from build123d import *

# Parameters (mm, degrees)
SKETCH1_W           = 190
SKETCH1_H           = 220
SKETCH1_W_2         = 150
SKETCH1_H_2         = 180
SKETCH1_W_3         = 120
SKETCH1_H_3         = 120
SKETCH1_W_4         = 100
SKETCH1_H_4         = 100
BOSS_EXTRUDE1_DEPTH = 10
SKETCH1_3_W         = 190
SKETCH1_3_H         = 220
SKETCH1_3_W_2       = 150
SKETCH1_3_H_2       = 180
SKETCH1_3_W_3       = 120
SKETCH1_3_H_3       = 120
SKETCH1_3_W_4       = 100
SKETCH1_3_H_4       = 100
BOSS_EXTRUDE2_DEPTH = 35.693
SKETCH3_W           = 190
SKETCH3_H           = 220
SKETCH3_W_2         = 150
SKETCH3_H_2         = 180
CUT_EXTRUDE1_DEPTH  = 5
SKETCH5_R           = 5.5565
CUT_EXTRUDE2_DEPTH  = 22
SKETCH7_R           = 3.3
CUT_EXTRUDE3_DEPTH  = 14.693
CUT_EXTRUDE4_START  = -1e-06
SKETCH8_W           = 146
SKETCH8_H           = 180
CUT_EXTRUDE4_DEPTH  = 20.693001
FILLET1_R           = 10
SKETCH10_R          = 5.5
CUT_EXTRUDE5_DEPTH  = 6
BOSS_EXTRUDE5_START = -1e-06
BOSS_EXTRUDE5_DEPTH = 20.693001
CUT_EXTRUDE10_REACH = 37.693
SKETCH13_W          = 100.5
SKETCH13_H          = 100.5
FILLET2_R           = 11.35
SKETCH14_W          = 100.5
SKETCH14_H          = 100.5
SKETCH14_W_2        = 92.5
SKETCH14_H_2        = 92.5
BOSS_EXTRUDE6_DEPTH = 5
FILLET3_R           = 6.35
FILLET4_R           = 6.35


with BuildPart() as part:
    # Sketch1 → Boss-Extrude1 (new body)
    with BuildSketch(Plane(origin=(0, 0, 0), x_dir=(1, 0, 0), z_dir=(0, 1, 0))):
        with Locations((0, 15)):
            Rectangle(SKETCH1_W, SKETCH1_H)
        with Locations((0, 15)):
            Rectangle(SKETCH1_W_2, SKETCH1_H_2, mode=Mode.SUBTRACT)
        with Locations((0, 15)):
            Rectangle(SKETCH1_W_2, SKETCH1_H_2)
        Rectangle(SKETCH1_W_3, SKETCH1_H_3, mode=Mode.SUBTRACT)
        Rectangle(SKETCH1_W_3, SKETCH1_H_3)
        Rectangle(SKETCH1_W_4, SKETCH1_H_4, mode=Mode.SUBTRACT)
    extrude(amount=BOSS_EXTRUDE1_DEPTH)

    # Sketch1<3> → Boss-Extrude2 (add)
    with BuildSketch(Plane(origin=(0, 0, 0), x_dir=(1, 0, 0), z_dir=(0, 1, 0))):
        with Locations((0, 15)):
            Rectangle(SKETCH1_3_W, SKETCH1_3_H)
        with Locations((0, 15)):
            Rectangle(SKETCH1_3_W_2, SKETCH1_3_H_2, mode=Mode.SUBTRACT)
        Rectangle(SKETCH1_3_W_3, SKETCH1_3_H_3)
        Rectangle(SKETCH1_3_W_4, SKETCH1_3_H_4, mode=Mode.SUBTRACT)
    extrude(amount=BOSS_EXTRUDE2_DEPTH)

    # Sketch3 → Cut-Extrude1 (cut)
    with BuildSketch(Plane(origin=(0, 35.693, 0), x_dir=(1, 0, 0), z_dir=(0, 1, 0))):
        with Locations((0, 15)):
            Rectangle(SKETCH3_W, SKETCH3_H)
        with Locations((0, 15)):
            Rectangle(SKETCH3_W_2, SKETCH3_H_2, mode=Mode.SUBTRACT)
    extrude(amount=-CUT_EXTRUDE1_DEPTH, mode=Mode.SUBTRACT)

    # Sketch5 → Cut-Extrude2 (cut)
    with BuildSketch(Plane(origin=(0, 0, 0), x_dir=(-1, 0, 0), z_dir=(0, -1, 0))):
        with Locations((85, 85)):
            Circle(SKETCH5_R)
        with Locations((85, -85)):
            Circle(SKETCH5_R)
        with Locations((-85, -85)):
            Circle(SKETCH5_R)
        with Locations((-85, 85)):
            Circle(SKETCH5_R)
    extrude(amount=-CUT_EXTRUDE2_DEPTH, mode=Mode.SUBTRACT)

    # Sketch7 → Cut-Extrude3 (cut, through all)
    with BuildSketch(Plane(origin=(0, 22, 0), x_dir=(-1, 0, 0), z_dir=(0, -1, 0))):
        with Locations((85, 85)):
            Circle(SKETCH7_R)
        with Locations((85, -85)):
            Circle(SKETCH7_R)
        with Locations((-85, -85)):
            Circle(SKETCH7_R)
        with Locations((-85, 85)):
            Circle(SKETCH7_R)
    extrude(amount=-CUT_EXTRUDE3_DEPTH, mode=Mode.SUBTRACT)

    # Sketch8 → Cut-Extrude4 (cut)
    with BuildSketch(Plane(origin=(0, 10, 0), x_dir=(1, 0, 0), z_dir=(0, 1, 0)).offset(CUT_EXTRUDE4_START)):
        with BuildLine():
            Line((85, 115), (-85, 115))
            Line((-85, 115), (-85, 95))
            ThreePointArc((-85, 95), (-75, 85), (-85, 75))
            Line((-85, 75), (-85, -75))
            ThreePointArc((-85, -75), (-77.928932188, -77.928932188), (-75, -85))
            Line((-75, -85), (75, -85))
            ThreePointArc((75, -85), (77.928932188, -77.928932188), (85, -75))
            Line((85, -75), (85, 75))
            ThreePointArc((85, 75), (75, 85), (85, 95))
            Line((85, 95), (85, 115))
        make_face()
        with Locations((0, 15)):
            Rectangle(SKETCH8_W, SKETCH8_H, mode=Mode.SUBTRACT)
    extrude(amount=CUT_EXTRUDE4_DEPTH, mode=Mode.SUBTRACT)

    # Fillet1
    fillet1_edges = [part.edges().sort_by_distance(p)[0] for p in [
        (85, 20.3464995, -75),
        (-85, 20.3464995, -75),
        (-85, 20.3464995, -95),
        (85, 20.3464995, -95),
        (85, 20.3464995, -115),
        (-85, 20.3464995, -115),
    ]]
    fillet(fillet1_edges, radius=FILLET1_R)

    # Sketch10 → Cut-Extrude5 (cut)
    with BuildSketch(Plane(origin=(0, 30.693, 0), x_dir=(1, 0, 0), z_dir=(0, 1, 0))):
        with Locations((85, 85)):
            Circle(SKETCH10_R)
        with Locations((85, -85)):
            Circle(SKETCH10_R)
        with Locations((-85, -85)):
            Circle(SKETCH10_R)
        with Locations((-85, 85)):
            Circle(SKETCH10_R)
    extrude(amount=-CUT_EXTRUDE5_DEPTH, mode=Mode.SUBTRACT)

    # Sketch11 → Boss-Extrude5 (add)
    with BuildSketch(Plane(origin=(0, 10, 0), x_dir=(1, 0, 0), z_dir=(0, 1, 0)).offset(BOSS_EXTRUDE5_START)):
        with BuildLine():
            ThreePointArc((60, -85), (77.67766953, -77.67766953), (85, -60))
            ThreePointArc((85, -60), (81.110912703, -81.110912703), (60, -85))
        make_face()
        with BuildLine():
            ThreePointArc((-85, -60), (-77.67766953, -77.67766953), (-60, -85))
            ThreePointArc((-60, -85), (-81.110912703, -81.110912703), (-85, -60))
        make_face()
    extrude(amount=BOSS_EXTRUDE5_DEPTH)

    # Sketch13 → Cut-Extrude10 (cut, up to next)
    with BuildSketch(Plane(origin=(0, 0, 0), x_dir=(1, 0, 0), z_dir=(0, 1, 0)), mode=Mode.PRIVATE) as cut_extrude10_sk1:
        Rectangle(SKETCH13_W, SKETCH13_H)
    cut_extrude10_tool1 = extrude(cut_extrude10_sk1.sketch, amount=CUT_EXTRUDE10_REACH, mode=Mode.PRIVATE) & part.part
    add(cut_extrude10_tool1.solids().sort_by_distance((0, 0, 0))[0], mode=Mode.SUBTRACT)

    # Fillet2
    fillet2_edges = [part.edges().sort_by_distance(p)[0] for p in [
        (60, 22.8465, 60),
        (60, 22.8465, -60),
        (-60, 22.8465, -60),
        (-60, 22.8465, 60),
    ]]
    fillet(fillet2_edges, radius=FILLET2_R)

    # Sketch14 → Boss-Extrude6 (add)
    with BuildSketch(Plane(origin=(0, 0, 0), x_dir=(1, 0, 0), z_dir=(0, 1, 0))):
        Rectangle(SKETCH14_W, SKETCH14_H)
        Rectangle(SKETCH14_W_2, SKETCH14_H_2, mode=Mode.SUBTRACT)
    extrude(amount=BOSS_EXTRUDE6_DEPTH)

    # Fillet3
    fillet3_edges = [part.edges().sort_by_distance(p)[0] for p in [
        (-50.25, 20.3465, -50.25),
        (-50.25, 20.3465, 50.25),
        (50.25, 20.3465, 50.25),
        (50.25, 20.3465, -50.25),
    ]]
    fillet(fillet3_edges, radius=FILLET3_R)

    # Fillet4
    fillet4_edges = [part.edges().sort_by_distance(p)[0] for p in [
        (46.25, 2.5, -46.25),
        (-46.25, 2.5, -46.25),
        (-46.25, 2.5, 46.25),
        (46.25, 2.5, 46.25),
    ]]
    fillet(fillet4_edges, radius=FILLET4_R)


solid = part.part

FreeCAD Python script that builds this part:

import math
import FreeCAD as App
import Part
import Sketcher


def edges_at(feature, points):
    """Names of the edges that pass closest to the given points."""
    edges = feature.Shape.Edges
    near = lambda p: min(range(len(edges)), key=lambda i: edges[i].distToShape(Part.Vertex(*p))[0])
    return sorted({f"Edge{near(p) + 1}" for p in points})


def add_polygon(sketch, points):
    """Adds a closed chain of lines whose ends are joined by coincident constraints."""
    first, n = sketch.GeometryCount, len(points)
    for a, b in zip(points, points[1:] + points[:1]):
        sketch.addGeometry(Part.LineSegment(App.Vector(*a, 0), App.Vector(*b, 0)), False)
    for i in range(n):
        sketch.addConstraint(Sketcher.Constraint("Coincident", first + i, 2, first + (i + 1) % n, 1))

doc = App.newDocument("Part")
body = doc.addObject("PartDesign::Body", "Body")

# Sketch on XZ plane
sketch1 = body.newObject("Sketcher::SketchObject", "Sketch")
sketch1.AttachmentSupport = (doc.getObject("XZ_Plane"), [""])
sketch1.MapMode = "FlatFace"
add_polygon(sketch1, [(-95, -125), (-95, 95), (95, 95), (95, -125)])  # lines 0-3
add_polygon(sketch1, [(50, 50), (-50, 50), (-50, -50), (50, -50)])  # lines 4-7
sketch1.addConstraint(Sketcher.Constraint("Vertical", 0))
sketch1.addConstraint(Sketcher.Constraint("Horizontal", 1))
sketch1.addConstraint(Sketcher.Constraint("Vertical", 2))
sketch1.addConstraint(Sketcher.Constraint("Horizontal", 3))
sketch1.addConstraint(Sketcher.Constraint("Horizontal", 4))
sketch1.addConstraint(Sketcher.Constraint("Vertical", 5))
sketch1.addConstraint(Sketcher.Constraint("Horizontal", 6))
sketch1.addConstraint(Sketcher.Constraint("Vertical", 7))
sketch1.addConstraint(Sketcher.Constraint("Symmetric", 4, 2, 6, 2, -1, 1))
sketch1.addConstraint(Sketcher.Constraint("Equal", 6, 5))
sketch1.addConstraint(Sketcher.Constraint("DistanceX", 1, 1, 1, 2, 190.0))
sketch1.addConstraint(Sketcher.Constraint("DistanceX", 4, 2, 4, 1, 100.0))
sketch1.addConstraint(Sketcher.Constraint("DistanceY", 0, 1, 0, 2, 220.0))
sketch1.addConstraint(Sketcher.Constraint("DistanceX", 0, 2, -1, 1, 95.0))
sketch1.addConstraint(Sketcher.Constraint("DistanceY", -1, 1, 0, 2, 95.0))
pad1 = body.newObject("PartDesign::Pad", "Pad")
pad1.Profile = sketch1
pad1.Length = 10
pad1.Reversed = True

# Sketch on XZ plane
sketch2 = body.newObject("Sketcher::SketchObject", "Sketch001")
sketch2.AttachmentSupport = (doc.getObject("XZ_Plane"), [""])
sketch2.MapMode = "FlatFace"
add_polygon(sketch2, [(-95, -125), (-95, 95), (95, 95), (95, -125)])  # lines 0-3
add_polygon(sketch2, [(75, 75), (-75, 75), (-75, -105), (75, -105)])  # lines 4-7
add_polygon(sketch2, [(-60, -60), (-60, 60), (60, 60), (60, -60)])  # lines 8-11
add_polygon(sketch2, [(50, 50), (-50, 50), (-50, -50), (50, -50)])  # lines 12-15
sketch2.addConstraint(Sketcher.Constraint("Vertical", 0))
sketch2.addConstraint(Sketcher.Constraint("Horizontal", 1))
sketch2.addConstraint(Sketcher.Constraint("Vertical", 2))
sketch2.addConstraint(Sketcher.Constraint("Horizontal", 3))
sketch2.addConstraint(Sketcher.Constraint("Horizontal", 4))
sketch2.addConstraint(Sketcher.Constraint("Vertical", 5))
sketch2.addConstraint(Sketcher.Constraint("Horizontal", 6))
sketch2.addConstraint(Sketcher.Constraint("Vertical", 7))
sketch2.addConstraint(Sketcher.Constraint("Vertical", 8))
sketch2.addConstraint(Sketcher.Constraint("Horizontal", 9))
sketch2.addConstraint(Sketcher.Constraint("Vertical", 10))
sketch2.addConstraint(Sketcher.Constraint("Horizontal", 11))
sketch2.addConstraint(Sketcher.Constraint("Horizontal", 12))
sketch2.addConstraint(Sketcher.Constraint("Vertical", 13))
sketch2.addConstraint(Sketcher.Constraint("Horizontal", 14))
sketch2.addConstraint(Sketcher.Constraint("Vertical", 15))
sketch2.addConstraint(Sketcher.Constraint("Symmetric", 8, 2, 10, 2, -1, 1))
sketch2.addConstraint(Sketcher.Constraint("Symmetric", 12, 2, 14, 2, -1, 1))
sketch2.addConstraint(Sketcher.Constraint("Equal", 11, 8))
sketch2.addConstraint(Sketcher.Constraint("Equal", 14, 13))
sketch2.addConstraint(Sketcher.Constraint("DistanceX", 1, 1, 1, 2, 190.0))
sketch2.addConstraint(Sketcher.Constraint("DistanceX", 4, 2, 4, 1, 150.0))
sketch2.addConstraint(Sketcher.Constraint("DistanceX", 9, 1, 9, 2, 120.0))
sketch2.addConstraint(Sketcher.Constraint("DistanceX", 12, 2, 12, 1, 100.0))
sketch2.addConstraint(Sketcher.Constraint("DistanceY", 0, 1, 0, 2, 220.0))
sketch2.addConstraint(Sketcher.Constraint("DistanceY", 5, 2, 5, 1, 180.0))
sketch2.addConstraint(Sketcher.Constraint("DistanceX", 0, 2, -1, 1, 95.0))
sketch2.addConstraint(Sketcher.Constraint("DistanceY", -1, 1, 0, 2, 95.0))
sketch2.addConstraint(Sketcher.Constraint("DistanceX", 4, 2, -1, 1, 75.0))
sketch2.addConstraint(Sketcher.Constraint("DistanceY", -1, 1, 4, 2, 75.0))
pad2 = body.newObject("PartDesign::Pad", "Pad001")
pad2.Profile = sketch2
pad2.Length = 35.693
pad2.Reversed = True

# Sketch on XZ plane
sketch3 = body.newObject("Sketcher::SketchObject", "Sketch002")
sketch3.AttachmentSupport = (doc.getObject("XZ_Plane"), [""])
sketch3.MapMode = "FlatFace"
sketch3.AttachmentOffset = App.Placement(App.Vector(0, 0, -35.693), App.Rotation())
add_polygon(sketch3, [(-95, -125), (-95, 95), (95, 95), (95, -125)])  # lines 0-3
add_polygon(sketch3, [(75, 75), (-75, 75), (-75, -105), (75, -105)])  # lines 4-7
sketch3.addConstraint(Sketcher.Constraint("Vertical", 0))
sketch3.addConstraint(Sketcher.Constraint("Horizontal", 1))
sketch3.addConstraint(Sketcher.Constraint("Vertical", 2))
sketch3.addConstraint(Sketcher.Constraint("Horizontal", 3))
sketch3.addConstraint(Sketcher.Constraint("Horizontal", 4))
sketch3.addConstraint(Sketcher.Constraint("Vertical", 5))
sketch3.addConstraint(Sketcher.Constraint("Horizontal", 6))
sketch3.addConstraint(Sketcher.Constraint("Vertical", 7))
sketch3.addConstraint(Sketcher.Constraint("DistanceX", 1, 1, 1, 2, 190.0))
sketch3.addConstraint(Sketcher.Constraint("DistanceX", 4, 2, 4, 1, 150.0))
sketch3.addConstraint(Sketcher.Constraint("DistanceY", 0, 1, 0, 2, 220.0))
sketch3.addConstraint(Sketcher.Constraint("DistanceY", 5, 2, 5, 1, 180.0))
sketch3.addConstraint(Sketcher.Constraint("DistanceX", 0, 2, -1, 1, 95.0))
sketch3.addConstraint(Sketcher.Constraint("DistanceY", -1, 1, 0, 2, 95.0))
sketch3.addConstraint(Sketcher.Constraint("DistanceX", 4, 2, -1, 1, 75.0))
sketch3.addConstraint(Sketcher.Constraint("DistanceY", -1, 1, 4, 2, 75.0))
pocket1 = body.newObject("PartDesign::Pocket", "Pocket")
pocket1.Profile = sketch3
pocket1.Length = 5
pocket1.Reversed = True

# Sketch on XZ plane
sketch4 = body.newObject("Sketcher::SketchObject", "Sketch003")
sketch4.AttachmentSupport = (doc.getObject("XZ_Plane"), [""])
sketch4.MapMode = "FlatFace"
sketch4.addGeometry(Part.Circle(App.Vector(-85, -85, 0), App.Vector(0, 0, 1), 6), False)
sketch4.addGeometry(Part.Circle(App.Vector(-85, 85, 0), App.Vector(0, 0, 1), 6), False)
sketch4.addGeometry(Part.Circle(App.Vector(85, 85, 0), App.Vector(0, 0, 1), 6), False)
sketch4.addGeometry(Part.Circle(App.Vector(85, -85, 0), App.Vector(0, 0, 1), 6), False)
sketch4.addConstraint(Sketcher.Constraint("Equal", 0, 1))
sketch4.addConstraint(Sketcher.Constraint("Equal", 1, 2))
sketch4.addConstraint(Sketcher.Constraint("Equal", 2, 3))
sketch4.addConstraint(Sketcher.Constraint("Symmetric", 0, 3, 2, 3, -1, 1))
sketch4.addConstraint(Sketcher.Constraint("Symmetric", 1, 3, 3, 3, -1, 1))
sketch4.addConstraint(Sketcher.Constraint("Symmetric", 1, 3, 2, 3, -2))
sketch4.addConstraint(Sketcher.Constraint("Diameter", 0, 11.113))
sketch4.addConstraint(Sketcher.Constraint("DistanceX", 0, 3, -1, 1, 85.0))
sketch4.addConstraint(Sketcher.Constraint("DistanceY", 0, 3, -1, 1, 85.0))
pocket2 = body.newObject("PartDesign::Pocket", "Pocket001")
pocket2.Profile = sketch4
pocket2.Length = 22

# Sketch on XZ plane
sketch5 = body.newObject("Sketcher::SketchObject", "Sketch004")
sketch5.AttachmentSupport = (doc.getObject("XZ_Plane"), [""])
sketch5.MapMode = "FlatFace"
sketch5.AttachmentOffset = App.Placement(App.Vector(0, 0, -22), App.Rotation())
sketch5.addGeometry(Part.Circle(App.Vector(-85, -85, 0), App.Vector(0, 0, 1), 3.3), False)
sketch5.addGeometry(Part.Circle(App.Vector(-85, 85, 0), App.Vector(0, 0, 1), 3.3), False)
sketch5.addGeometry(Part.Circle(App.Vector(85, 85, 0), App.Vector(0, 0, 1), 3.3), False)
sketch5.addGeometry(Part.Circle(App.Vector(85, -85, 0), App.Vector(0, 0, 1), 3.3), False)
sketch5.addConstraint(Sketcher.Constraint("Equal", 0, 1))
sketch5.addConstraint(Sketcher.Constraint("Equal", 1, 2))
sketch5.addConstraint(Sketcher.Constraint("Equal", 2, 3))
sketch5.addConstraint(Sketcher.Constraint("Symmetric", 0, 3, 2, 3, -1, 1))
sketch5.addConstraint(Sketcher.Constraint("Symmetric", 1, 3, 3, 3, -1, 1))
sketch5.addConstraint(Sketcher.Constraint("Symmetric", 1, 3, 2, 3, -2))
sketch5.addConstraint(Sketcher.Constraint("Diameter", 0, 6.6))
sketch5.addConstraint(Sketcher.Constraint("DistanceX", 0, 3, -1, 1, 85.0))
sketch5.addConstraint(Sketcher.Constraint("DistanceY", 0, 3, -1, 1, 85.0))
pocket3 = body.newObject("PartDesign::Pocket", "Pocket002")
pocket3.Profile = sketch5
pocket3.Type = "ThroughAll"

# Sketch on XZ plane
sketch6 = body.newObject("Sketcher::SketchObject", "Sketch005")
sketch6.AttachmentSupport = (doc.getObject("XZ_Plane"), [""])
sketch6.MapMode = "FlatFace"
sketch6.AttachmentOffset = App.Placement(App.Vector(0, 0, -9.999999), App.Rotation())
sketch6.addGeometry(Part.LineSegment(App.Vector(85, -115, 0), App.Vector(-85, -115, 0)), False)  # 0
sketch6.addGeometry(Part.LineSegment(App.Vector(-85, -115, 0), App.Vector(-85, -95, 0)), False)  # 1
sketch6.addGeometry(Part.ArcOfCircle(Part.Circle(App.Vector(-85, -85, 0), App.Vector(0, 0, 1), 10), math.radians(-90), math.radians(90)), False)  # 2
sketch6.addGeometry(Part.LineSegment(App.Vector(-85, -75, 0), App.Vector(-85, 75, 0)), False)  # 3
sketch6.addGeometry(Part.ArcOfCircle(Part.Circle(App.Vector(-85, 85, 0), App.Vector(0, 0, 1), 10), math.radians(-90), math.radians(0)), False)  # 4
sketch6.addGeometry(Part.LineSegment(App.Vector(-75, 85, 0), App.Vector(75, 85, 0)), False)  # 5
sketch6.addGeometry(Part.ArcOfCircle(Part.Circle(App.Vector(85, 85, 0), App.Vector(0, 0, 1), 10), math.radians(180), math.radians(270)), False)  # 6
sketch6.addGeometry(Part.LineSegment(App.Vector(85, 75, 0), App.Vector(85, -75, 0)), False)  # 7
sketch6.addGeometry(Part.ArcOfCircle(Part.Circle(App.Vector(85, -85, 0), App.Vector(0, 0, 1), 10), math.radians(90), math.radians(270)), False)  # 8
sketch6.addGeometry(Part.LineSegment(App.Vector(85, -95, 0), App.Vector(85, -115, 0)), False)  # 9
add_polygon(sketch6, [(73, 75), (-73, 75), (-73, -105), (73, -105)])  # lines 10-13
sketch6.addConstraint(Sketcher.Constraint("Coincident", 0, 2, 1, 1))
sketch6.addConstraint(Sketcher.Constraint("Coincident", 1, 2, 2, 1))
sketch6.addConstraint(Sketcher.Constraint("Coincident", 2, 2, 3, 1))
sketch6.addConstraint(Sketcher.Constraint("Coincident", 3, 2, 4, 1))
sketch6.addConstraint(Sketcher.Constraint("Coincident", 4, 2, 5, 1))
sketch6.addConstraint(Sketcher.Constraint("Coincident", 5, 2, 6, 1))
sketch6.addConstraint(Sketcher.Constraint("Coincident", 6, 2, 7, 1))
sketch6.addConstraint(Sketcher.Constraint("Coincident", 7, 2, 8, 1))
sketch6.addConstraint(Sketcher.Constraint("Coincident", 8, 2, 9, 1))
sketch6.addConstraint(Sketcher.Constraint("Coincident", 9, 2, 0, 1))
sketch6.addConstraint(Sketcher.Constraint("Horizontal", 0))
sketch6.addConstraint(Sketcher.Constraint("Vertical", 1))
sketch6.addConstraint(Sketcher.Constraint("Vertical", 3))
sketch6.addConstraint(Sketcher.Constraint("Horizontal", 5))
sketch6.addConstraint(Sketcher.Constraint("Vertical", 7))
sketch6.addConstraint(Sketcher.Constraint("Vertical", 9))
sketch6.addConstraint(Sketcher.Constraint("Horizontal", 10))
sketch6.addConstraint(Sketcher.Constraint("Vertical", 11))
sketch6.addConstraint(Sketcher.Constraint("Horizontal", 12))
sketch6.addConstraint(Sketcher.Constraint("Vertical", 13))
sketch6.addConstraint(Sketcher.Constraint("Equal", 2, 4))
sketch6.addConstraint(Sketcher.Constraint("Equal", 4, 6))
sketch6.addConstraint(Sketcher.Constraint("Equal", 6, 8))
sketch6.addConstraint(Sketcher.Constraint("Symmetric", 2, 3, 6, 3, -1, 1))
sketch6.addConstraint(Sketcher.Constraint("Symmetric", 4, 3, 8, 3, -1, 1))
sketch6.addConstraint(Sketcher.Constraint("Symmetric", 4, 3, 6, 3, -2))
sketch6.addConstraint(Sketcher.Constraint("Horizontal", 6, 3, 4, 2))
sketch6.addConstraint(Sketcher.Constraint("Horizontal", 6, 2, 10, 2))
sketch6.addConstraint(Sketcher.Constraint("Vertical", 4, 3, 0, 2))
sketch6.addConstraint(Sketcher.Constraint("Vertical", 1, 2, 2, 2))
sketch6.addConstraint(Sketcher.Constraint("Vertical", 8, 3, 6, 2))
sketch6.addConstraint(Sketcher.Constraint("Vertical", 7, 2, 8, 2))
sketch6.addConstraint(Sketcher.Constraint("Equal", 5, 3))
sketch6.addConstraint(Sketcher.Constraint("Radius", 2, 10.0))
sketch6.addConstraint(Sketcher.Constraint("DistanceX", 0, 2, 0, 1, 170.0))
sketch6.addConstraint(Sketcher.Constraint("DistanceX", 10, 2, 10, 1, 146.0))
sketch6.addConstraint(Sketcher.Constraint("DistanceY", 1, 1, 1, 2, 20.0))
sketch6.addConstraint(Sketcher.Constraint("DistanceY", 11, 2, 11, 1, 180.0))
sketch6.addConstraint(Sketcher.Constraint("DistanceX", 10, 2, -1, 1, 73.0))
pocket4 = body.newObject("PartDesign::Pocket", "Pocket003")
pocket4.Profile = sketch6
pocket4.Length = 20.693001
doc.recompute()

fillet = body.newObject("PartDesign::Fillet", "Fillet")
fillet.Base = (pocket4, edges_at(pocket4, [
    (85, 20.346, -75),
    (-85, 20.346, -75),
    (-85, 20.346, -95),
    (85, 20.346, -95),
    (85, 20.346, -115),
    (-85, 20.346, -115),
]))
fillet.Radius = 10

# Sketch on XZ plane
sketch7 = body.newObject("Sketcher::SketchObject", "Sketch006")
sketch7.AttachmentSupport = (doc.getObject("XZ_Plane"), [""])
sketch7.MapMode = "FlatFace"
sketch7.AttachmentOffset = App.Placement(App.Vector(0, 0, -30.693), App.Rotation())
sketch7.addGeometry(Part.Circle(App.Vector(85, -85, 0), App.Vector(0, 0, 1), 6), False)
sketch7.addGeometry(Part.Circle(App.Vector(85, 85, 0), App.Vector(0, 0, 1), 6), False)
sketch7.addGeometry(Part.Circle(App.Vector(-85, 85, 0), App.Vector(0, 0, 1), 6), False)
sketch7.addGeometry(Part.Circle(App.Vector(-85, -85, 0), App.Vector(0, 0, 1), 6), False)
sketch7.addConstraint(Sketcher.Constraint("Equal", 0, 1))
sketch7.addConstraint(Sketcher.Constraint("Equal", 1, 2))
sketch7.addConstraint(Sketcher.Constraint("Equal", 2, 3))
sketch7.addConstraint(Sketcher.Constraint("Symmetric", 0, 3, 2, 3, -1, 1))
sketch7.addConstraint(Sketcher.Constraint("Symmetric", 1, 3, 3, 3, -1, 1))
sketch7.addConstraint(Sketcher.Constraint("Symmetric", 1, 3, 2, 3, -2))
sketch7.addConstraint(Sketcher.Constraint("Diameter", 0, 11.0))
sketch7.addConstraint(Sketcher.Constraint("DistanceX", -1, 1, 0, 3, 85.0))
sketch7.addConstraint(Sketcher.Constraint("DistanceY", 0, 3, -1, 1, 85.0))
pocket5 = body.newObject("PartDesign::Pocket", "Pocket004")
pocket5.Profile = sketch7
pocket5.Length = 6
pocket5.Reversed = True

# Sketch on XZ plane
sketch8 = body.newObject("Sketcher::SketchObject", "Sketch007")
sketch8.AttachmentSupport = (doc.getObject("XZ_Plane"), [""])
sketch8.MapMode = "FlatFace"
sketch8.AttachmentOffset = App.Placement(App.Vector(0, 0, -9.999999), App.Rotation())
sketch8.addGeometry(Part.ArcOfCircle(Part.Circle(App.Vector(60, 60, 0), App.Vector(0, 0, 1), 25), math.radians(0), math.radians(90)), False)
sketch8.addGeometry(Part.ArcOfCircle(Part.Circle(App.Vector(68, 68, 0), App.Vector(0, 0, 1), 19), math.radians(-24), math.radians(114)), False)
sketch8.addGeometry(Part.ArcOfCircle(Part.Circle(App.Vector(-60, 60, 0), App.Vector(0, 0, 1), 25), math.radians(90), math.radians(180)), False)
sketch8.addGeometry(Part.ArcOfCircle(Part.Circle(App.Vector(-68, 68, 0), App.Vector(0, 0, 1), 19), math.radians(66), math.radians(204)), False)
sketch8.addConstraint(Sketcher.Constraint("Coincident", 0, 1, 1, 1))
sketch8.addConstraint(Sketcher.Constraint("Coincident", 1, 2, 0, 2))
sketch8.addConstraint(Sketcher.Constraint("Coincident", 2, 1, 3, 1))
sketch8.addConstraint(Sketcher.Constraint("Coincident", 3, 2, 2, 2))
sketch8.addConstraint(Sketcher.Constraint("Equal", 0, 2))
sketch8.addConstraint(Sketcher.Constraint("Equal", 1, 3))
sketch8.addConstraint(Sketcher.Constraint("Symmetric", 0, 3, 2, 3, -2))
sketch8.addConstraint(Sketcher.Constraint("Symmetric", 1, 3, 3, 3, -2))
sketch8.addConstraint(Sketcher.Constraint("Horizontal", 2, 3, 0, 1))
sketch8.addConstraint(Sketcher.Constraint("Vertical", 0, 3, 1, 2))
sketch8.addConstraint(Sketcher.Constraint("Radius", 0, 25.0))
sketch8.addConstraint(Sketcher.Constraint("DistanceX", -1, 1, 0, 3, 60.0))
sketch8.addConstraint(Sketcher.Constraint("DistanceY", -1, 1, 0, 3, 60.0))
sketch8.addConstraint(Sketcher.Constraint("Radius", 1, 18.919697))
pad3 = body.newObject("PartDesign::Pad", "Pad002")
pad3.Profile = sketch8
pad3.Length = 20.693001
pad3.Reversed = True

# Sketch on XZ plane
sketch9 = body.newObject("Sketcher::SketchObject", "Sketch008")
sketch9.AttachmentSupport = (doc.getObject("XZ_Plane"), [""])
sketch9.MapMode = "FlatFace"
add_polygon(sketch9, [(-50, -50), (-50, 50), (50, 50), (50, -50)])  # lines 0-3
sketch9.addConstraint(Sketcher.Constraint("Vertical", 0))
sketch9.addConstraint(Sketcher.Constraint("Horizontal", 1))
sketch9.addConstraint(Sketcher.Constraint("Vertical", 2))
sketch9.addConstraint(Sketcher.Constraint("Horizontal", 3))
sketch9.addConstraint(Sketcher.Constraint("Symmetric", 0, 2, 2, 2, -1, 1))
sketch9.addConstraint(Sketcher.Constraint("Equal", 3, 0))
sketch9.addConstraint(Sketcher.Constraint("DistanceX", 1, 1, 1, 2, 100.5))
pocket6 = body.newObject("PartDesign::Pocket", "Pocket005")
pocket6.Profile = sketch9
pocket6.Length = 35.693
doc.recompute()

fillet2 = body.newObject("PartDesign::Fillet", "Fillet001")
fillet2.Base = (pocket6, edges_at(pocket6, [
    (60, 22.846, 60),
    (60, 22.846, -60),
    (-60, 22.846, -60),
    (-60, 22.846, 60),
]))
fillet2.Radius = 11.35

# Sketch on XZ plane
sketch10 = body.newObject("Sketcher::SketchObject", "Sketch009")
sketch10.AttachmentSupport = (doc.getObject("XZ_Plane"), [""])
sketch10.MapMode = "FlatFace"
add_polygon(sketch10, [(-50, -50), (-50, 50), (50, 50), (50, -50)])  # lines 0-3
add_polygon(sketch10, [(46, 46), (-46, 46), (-46, -46), (46, -46)])  # lines 4-7
sketch10.addConstraint(Sketcher.Constraint("Vertical", 0))
sketch10.addConstraint(Sketcher.Constraint("Horizontal", 1))
sketch10.addConstraint(Sketcher.Constraint("Vertical", 2))
sketch10.addConstraint(Sketcher.Constraint("Horizontal", 3))
sketch10.addConstraint(Sketcher.Constraint("Horizontal", 4))
sketch10.addConstraint(Sketcher.Constraint("Vertical", 5))
sketch10.addConstraint(Sketcher.Constraint("Horizontal", 6))
sketch10.addConstraint(Sketcher.Constraint("Vertical", 7))
sketch10.addConstraint(Sketcher.Constraint("Symmetric", 0, 2, 2, 2, -1, 1))
sketch10.addConstraint(Sketcher.Constraint("Symmetric", 4, 2, 6, 2, -1, 1))
sketch10.addConstraint(Sketcher.Constraint("Equal", 3, 0))
sketch10.addConstraint(Sketcher.Constraint("Equal", 6, 5))
sketch10.addConstraint(Sketcher.Constraint("DistanceX", 1, 1, 1, 2, 100.5))
sketch10.addConstraint(Sketcher.Constraint("DistanceX", 4, 2, 4, 1, 92.5))
pad4 = body.newObject("PartDesign::Pad", "Pad003")
pad4.Profile = sketch10
pad4.Length = 5
pad4.Reversed = True
doc.recompute()

fillet3 = body.newObject("PartDesign::Fillet", "Fillet002")
fillet3.Base = (pad4, edges_at(pad4, [
    (-50.25, 20.346, -50.25),
    (-50.25, 20.346, 50.25),
    (50.25, 20.346, 50.25),
    (50.25, 20.346, -50.25),
]))
fillet3.Radius = 6.35
doc.recompute()

fillet4 = body.newObject("PartDesign::Fillet", "Fillet003")
fillet4.Base = (fillet3, edges_at(fillet3, [
    (46.25, 2.5, -46.25),
    (-46.25, 2.5, -46.25),
    (-46.25, 2.5, 46.25),
    (46.25, 2.5, 46.25),
]))
fillet4.Radius = 6.35

doc.recompute()
